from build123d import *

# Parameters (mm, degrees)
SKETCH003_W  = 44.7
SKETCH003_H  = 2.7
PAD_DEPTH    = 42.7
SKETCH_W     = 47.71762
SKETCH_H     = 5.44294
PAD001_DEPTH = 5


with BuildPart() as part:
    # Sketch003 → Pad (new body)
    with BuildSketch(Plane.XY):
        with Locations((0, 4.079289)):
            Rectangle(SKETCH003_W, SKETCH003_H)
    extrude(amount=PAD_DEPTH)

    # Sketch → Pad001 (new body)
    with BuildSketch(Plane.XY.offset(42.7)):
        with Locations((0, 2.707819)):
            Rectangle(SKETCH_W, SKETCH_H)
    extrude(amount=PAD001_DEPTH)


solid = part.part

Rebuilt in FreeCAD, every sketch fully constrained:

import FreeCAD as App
import Part
import Sketcher


def add_polygon(sketch, points):
    """Adds a closed chain of lines whose ends are joined by coincident constraints."""
    first, n = sketch.GeometryCount, len(points)
    for a, b in zip(points, points[1:] + points[:1]):
        sketch.addGeometry(Part.LineSegment(App.Vector(*a, 0), App.Vector(*b, 0)), False)
    for i in range(n):
        sketch.addConstraint(Sketcher.Constraint("Coincident", first + i, 2, first + (i + 1) % n, 1))

doc = App.newDocument("Part")
params = doc.addObject("Spreadsheet::Sheet", "Params")
for row, (alias, value) in enumerate([
    ("sketch1_width", "44.7 mm"),
    ("sketch1_height", "2.7 mm"),
    ("pad1_length", "42.7 mm"),
    ("pad2_length", "5 mm"),
], start=1):
    params.set(f"A{row}", alias)
    params.set(f"B{row}", "=" + value)
    params.setAlias(f"B{row}", alias)

body = doc.addObject("PartDesign::Body", "Body")

# Sketch on XY plane
sketch1 = body.newObject("Sketcher::SketchObject", "Sketch")
sketch1.AttachmentSupport = (doc.getObject("XY_Plane"), [""])
sketch1.MapMode = "FlatFace"
add_polygon(sketch1, [(-22.35, 5.429289), (-22.35, 2.729289), (22.35, 2.729289), (22.35, 5.429289)])  # lines 0-3
sketch1.addConstraint([
    Sketcher.Constraint("Vertical", 0),
    Sketcher.Constraint("Horizontal", 1),
    Sketcher.Constraint("Vertical", 2),
    Sketcher.Constraint("Horizontal", 3),
    Sketcher.Constraint("DistanceX", 1, 1, 1, 2, 44.7),
    Sketcher.Constraint("DistanceY", 0, 2, 0, 1, 2.7),
    Sketcher.Constraint("DistanceX", 0, 2, -1, 1, 22.35),
    Sketcher.Constraint("DistanceY", -1, 1, 0, 2, 2.729289),
])
sketch1.setExpression("Constraints[8]", "Params.sketch1_width")
sketch1.setExpression("Constraints[9]", "Params.sketch1_height")
pad1 = body.newObject("PartDesign::Pad", "Pad")
pad1.Profile = sketch1
pad1.setExpression("Length", "Params.pad1_length")

# Sketch on XY plane
sketch2 = body.newObject("Sketcher::SketchObject", "Sketch001")
sketch2.AttachmentSupport = (doc.getObject("XY_Plane"), [""])
sketch2.MapMode = "FlatFace"
sketch2.AttachmentOffset = App.Placement(App.Vector(0, 0, 42.7), App.Rotation())
add_polygon(sketch2, [(-23.85881, 5.429289), (-23.85881, -0.013651), (23.85881, -0.013651), (23.85881, 5.429289)])  # lines 0-3
sketch2.addConstraint([
    Sketcher.Constraint("Vertical", 0),
    Sketcher.Constraint("Horizontal", 1),
    Sketcher.Constraint("Vertical", 2),
    Sketcher.Constraint("Horizontal", 3),
    Sketcher.Constraint("DistanceX", 1, 1, 1, 2, 47.71762),
    Sketcher.Constraint("DistanceY", 0, 2, 0, 1, 5.44294),
    Sketcher.Constraint("DistanceX", 0, 2, -1, 1, 23.85881),
    Sketcher.Constraint("DistanceY", 0, 2, -1, 1, 0.013651),
])
pad2 = body.newObject("PartDesign::Pad", "Pad001")
pad2.Profile = sketch2
pad2.setExpression("Length", "Params.pad2_length")

doc.recompute()
